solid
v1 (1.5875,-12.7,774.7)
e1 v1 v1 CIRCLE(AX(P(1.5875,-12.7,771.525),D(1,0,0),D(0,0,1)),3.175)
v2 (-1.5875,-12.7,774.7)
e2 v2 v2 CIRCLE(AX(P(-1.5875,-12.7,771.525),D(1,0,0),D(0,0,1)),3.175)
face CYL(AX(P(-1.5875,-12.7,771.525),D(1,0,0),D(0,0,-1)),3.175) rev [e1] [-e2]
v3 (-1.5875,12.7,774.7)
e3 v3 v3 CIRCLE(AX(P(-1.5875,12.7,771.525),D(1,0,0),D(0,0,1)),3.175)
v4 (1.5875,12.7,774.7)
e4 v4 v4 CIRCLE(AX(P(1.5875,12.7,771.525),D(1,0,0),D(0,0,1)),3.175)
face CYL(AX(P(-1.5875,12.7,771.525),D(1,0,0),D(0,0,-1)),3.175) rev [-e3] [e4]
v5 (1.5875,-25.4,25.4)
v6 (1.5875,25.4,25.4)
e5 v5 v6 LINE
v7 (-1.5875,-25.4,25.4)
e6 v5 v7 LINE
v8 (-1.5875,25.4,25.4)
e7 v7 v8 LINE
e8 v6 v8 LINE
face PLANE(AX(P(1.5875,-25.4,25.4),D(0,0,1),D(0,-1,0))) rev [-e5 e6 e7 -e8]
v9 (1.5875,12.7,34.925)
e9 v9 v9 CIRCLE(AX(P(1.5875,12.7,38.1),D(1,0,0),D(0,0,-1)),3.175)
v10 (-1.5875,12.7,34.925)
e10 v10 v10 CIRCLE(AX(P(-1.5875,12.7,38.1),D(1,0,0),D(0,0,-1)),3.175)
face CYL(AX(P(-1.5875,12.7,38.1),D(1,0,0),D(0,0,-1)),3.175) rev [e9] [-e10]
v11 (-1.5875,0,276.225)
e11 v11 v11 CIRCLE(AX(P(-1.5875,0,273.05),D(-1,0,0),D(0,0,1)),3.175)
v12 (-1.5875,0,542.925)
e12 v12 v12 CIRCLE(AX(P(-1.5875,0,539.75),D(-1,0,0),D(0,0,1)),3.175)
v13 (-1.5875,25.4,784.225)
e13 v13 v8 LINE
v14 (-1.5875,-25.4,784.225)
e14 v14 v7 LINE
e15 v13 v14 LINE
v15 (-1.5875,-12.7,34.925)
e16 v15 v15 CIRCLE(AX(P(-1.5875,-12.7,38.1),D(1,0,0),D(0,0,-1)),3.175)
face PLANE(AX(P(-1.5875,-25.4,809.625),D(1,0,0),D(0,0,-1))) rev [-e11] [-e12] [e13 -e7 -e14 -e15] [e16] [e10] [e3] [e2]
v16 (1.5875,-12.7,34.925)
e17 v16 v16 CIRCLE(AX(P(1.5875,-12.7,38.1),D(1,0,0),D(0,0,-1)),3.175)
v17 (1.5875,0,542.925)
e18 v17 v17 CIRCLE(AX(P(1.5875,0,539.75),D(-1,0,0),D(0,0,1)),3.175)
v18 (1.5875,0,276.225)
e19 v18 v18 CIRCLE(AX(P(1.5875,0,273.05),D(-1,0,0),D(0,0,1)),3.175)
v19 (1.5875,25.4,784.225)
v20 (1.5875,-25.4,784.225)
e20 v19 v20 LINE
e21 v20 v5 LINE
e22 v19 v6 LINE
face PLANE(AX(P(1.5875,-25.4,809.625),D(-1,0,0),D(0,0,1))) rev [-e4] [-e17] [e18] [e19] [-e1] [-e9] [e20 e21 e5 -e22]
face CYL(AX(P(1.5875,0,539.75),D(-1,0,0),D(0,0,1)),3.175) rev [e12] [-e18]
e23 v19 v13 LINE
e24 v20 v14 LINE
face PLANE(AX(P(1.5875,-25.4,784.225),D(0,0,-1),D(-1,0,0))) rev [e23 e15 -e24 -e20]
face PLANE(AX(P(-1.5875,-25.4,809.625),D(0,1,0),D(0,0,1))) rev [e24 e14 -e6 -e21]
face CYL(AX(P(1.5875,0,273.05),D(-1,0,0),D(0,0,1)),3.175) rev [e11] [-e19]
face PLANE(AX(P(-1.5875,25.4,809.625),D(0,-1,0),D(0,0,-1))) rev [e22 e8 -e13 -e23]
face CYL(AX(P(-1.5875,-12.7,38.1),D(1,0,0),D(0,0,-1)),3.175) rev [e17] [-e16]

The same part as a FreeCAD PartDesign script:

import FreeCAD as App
import Part
import Sketcher
from FreeCAD import Vector
Q = App.Units.Quantity

doc = App.newDocument("Part")
body = doc.addObject("PartDesign::Body", "Body")

sketch1 = body.newObject("Sketcher::SketchObject", "Sketch")
sketch1.AttachmentSupport = (doc.getObject("XY_Plane"), [""])
sketch1.MapMode = "FlatFace"
sketch1.addGeometry(Part.LineSegment(Vector(-1.6, 25.4, 0), Vector(-1.6, -25.4, 0)), False)
sketch1.addGeometry(Part.LineSegment(Vector(-1.6, -25.4, 0), Vector(1.6, -25.4, 0)), False)
sketch1.addGeometry(Part.LineSegment(Vector(1.6, -25.4, 0), Vector(1.6, 25.4, 0)), False)
sketch1.addGeometry(Part.LineSegment(Vector(1.6, 25.4, 0), Vector(-1.6, 25.4, 0)), False)
sketch1.addConstraint(Sketcher.Constraint("Coincident", 0, 2, 1, 1))
sketch1.addConstraint(Sketcher.Constraint("Coincident", 1, 2, 2, 1))
sketch1.addConstraint(Sketcher.Constraint("Coincident", 2, 2, 3, 1))
sketch1.addConstraint(Sketcher.Constraint("Coincident", 3, 2, 0, 1))
sketch1.addConstraint(Sketcher.Constraint("Vertical", 0))
sketch1.addConstraint(Sketcher.Constraint("Horizontal", 1))
sketch1.addConstraint(Sketcher.Constraint("Vertical", 2))
sketch1.addConstraint(Sketcher.Constraint("Horizontal", 3))
sketch1.addConstraint(Sketcher.Constraint("Symmetric", 0, 2, 2, 2, -1, 1))
sketch1.addConstraint(Sketcher.Constraint("DistanceY", 0, 2, 0, 1, Q("2 in")))
sketch1.addConstraint(Sketcher.Constraint("DistanceX", 1, 1, 1, 2, Q("0.125 in")))
pad1 = body.newObject("PartDesign::Pad", "Pad")
pad1.Profile = sketch1
pad1.Length = Q("31.875 in")

sketch2 = body.newObject("Sketcher::SketchObject", "Sketch001")
sketch2.AttachmentSupport = (doc.getObject("YZ_Plane"), [""])
sketch2.MapMode = "FlatFace"
sketch2.AttachmentOffset = App.Placement(Vector(0, 0, 0.0625 * 25.4), App.Rotation())
sketch2.addGeometry(Part.Circle(Vector(12.7, 38.1, 0), Vector(0, 0, 1), 3.2), False)
sketch2.addGeometry(Part.Circle(Vector(-12.7, 38.1, 0), Vector(0, 0, 1), 3.2), False)
sketch2.addGeometry(Part.Circle(Vector(12.7, 771.5, 0), Vector(0, 0, 1), 3.2), False)
sketch2.addGeometry(Part.Circle(Vector(-12.7, 771.5, 0), Vector(0, 0, 1), 3.2), False)
sketch2.addConstraint(Sketcher.Constraint("Equal", 0, 1))
sketch2.addConstraint(Sketcher.Constraint("Equal", 1, 2))
sketch2.addConstraint(Sketcher.Constraint("Equal", 2, 3))
sketch2.addConstraint(Sketcher.Constraint("Symmetric", 0, 3, 1, 3, -2))
sketch2.addConstraint(Sketcher.Constraint("Symmetric", 2, 3, 3, 3, -2))
sketch2.addConstraint(Sketcher.Constraint("Vertical", 0, 3, 2, 3))
sketch2.addConstraint(Sketcher.Constraint("Diameter", 0, Q("0.25 in")))
sketch2.addConstraint(Sketcher.Constraint("DistanceX", 1, 3, 0, 3, Q("1 in")))
sketch2.addConstraint(Sketcher.Constraint("DistanceY", -1, 1, 0, 3, Q("1.5 in")))
sketch2.addConstraint(Sketcher.Constraint("DistanceY", -1, 1, 2, 3, Q("30.375 in")))
pocket1 = body.newObject("PartDesign::Pocket", "Pocket")
pocket1.Profile = sketch2
pocket1.Type = "ThroughAll"

sketch3 = body.newObject("Sketcher::SketchObject", "Sketch002")
sketch3.AttachmentSupport = (doc.getObject("YZ_Plane"), [""])
sketch3.MapMode = "FlatFace"
sketch3.AttachmentOffset = App.Placement(Vector(0, 0, -0.0625 * 25.4), App.Rotation())
sketch3.addGeometry(Part.LineSegment(Vector(25, 784, 0), Vector(-25, 784, 0)), False)
sketch3.addGeometry(Part.LineSegment(Vector(-25, 784, 0), Vector(-25, 810, 0)), False)
sketch3.addGeometry(Part.LineSegment(Vector(-25, 810, 0), Vector(25, 810, 0)), False)
sketch3.addGeometry(Part.LineSegment(Vector(25, 810, 0), Vector(25, 784, 0)), False)
sketch3.addGeometry(Part.LineSegment(Vector(25, 0, 0), Vector(-25, 0, 0)), False)
sketch3.addGeometry(Part.LineSegment(Vector(-25, 0, 0), Vector(-25, 25, 0)), False)
sketch3.addGeometry(Part.LineSegment(Vector(-25, 25, 0), Vector(25, 25, 0)), False)
sketch3.addGeometry(Part.LineSegment(Vector(25, 25, 0), Vector(25, 0, 0)), False)
sketch3.addConstraint(Sketcher.Constraint("Coincident", 0, 2, 1, 1))
sketch3.addConstraint(Sketcher.Constraint("Coincident", 1, 2, 2, 1))
sketch3.addConstraint(Sketcher.Constraint("Coincident", 2, 2, 3, 1))
sketch3.addConstraint(Sketcher.Constraint("Coincident", 3, 2, 0, 1))
sketch3.addConstraint(Sketcher.Constraint("Coincident", 4, 2, 5, 1))
sketch3.addConstraint(Sketcher.Constraint("Coincident", 5, 2, 6, 1))
sketch3.addConstraint(Sketcher.Constraint("Coincident", 6, 2, 7, 1))
sketch3.addConstraint(Sketcher.Constraint("Coincident", 7, 2, 4, 1))
sketch3.addConstraint(Sketcher.Constraint("Horizontal", 0))
sketch3.addConstraint(Sketcher.Constraint("Vertical", 1))
sketch3.addConstraint(Sketcher.Constraint("Horizontal", 2))
sketch3.addConstraint(Sketcher.Constraint("Vertical", 3))
sketch3.addConstraint(Sketcher.Constraint("Horizontal", 4))
sketch3.addConstraint(Sketcher.Constraint("Vertical", 5))
sketch3.addConstraint(Sketcher.Constraint("Horizontal", 6))
sketch3.addConstraint(Sketcher.Constraint("Vertical", 7))
sketch3.addConstraint(Sketcher.Constraint("Symmetric", 4, 2, 7, 2, -1, 1))
sketch3.addConstraint(Sketcher.Constraint("Vertical", 1, 2, 4, 2))
sketch3.addConstraint(Sketcher.Constraint("Vertical", 3, 2, 6, 2))
sketch3.addConstraint(Sketcher.Constraint("Equal", 3, 5))
sketch3.addConstraint(Sketcher.Constraint("DistanceX", 0, 2, 0, 1, Q("2 in")))
sketch3.addConstraint(Sketcher.Constraint("DistanceY", 1, 1, 1, 2, Q("1 in")))
sketch3.addConstraint(Sketcher.Constraint("DistanceY", -1, 1, 0, 2, Q("30.875 in")))
pocket2 = body.newObject("PartDesign::Pocket", "Pocket001")
pocket2.Profile = sketch3
pocket2.Type = "ThroughAll"
pocket2.Reversed = True

sketch4 = body.newObject("Sketcher::SketchObject", "Sketch003")
sketch4.AttachmentSupport = (doc.getObject("YZ_Plane"), [""])
sketch4.MapMode = "FlatFace"
sketch4.AttachmentOffset = App.Placement(Vector(0, 0, -0.0625 * 25.4), App.Rotation())
sketch4.addGeometry(Part.Circle(Vector(0, 273.1, 0), Vector(0, 0, 1), 3.2), False)
sketch4.addGeometry(Part.Circle(Vector(0, 539.8, 0), Vector(0, 0, 1), 3.2), False)
sketch4.addConstraint(Sketcher.Constraint("Equal", 0, 1))
sketch4.addConstraint(Sketcher.Constraint("PointOnObject", 0, 3, -2))
sketch4.addConstraint(Sketcher.Constraint("PointOnObject", 1, 3, -2))
sketch4.addConstraint(Sketcher.Constraint("Diameter", 0, Q("0.25 in")))
sketch4.addConstraint(Sketcher.Constraint("DistanceY", 0, 3, 1, 3, Q("10.5 in")))
sketch4.addConstraint(Sketcher.Constraint("DistanceY", -1, 1, 0, 3, Q("10.75 in")))
pocket3 = body.newObject("PartDesign::Pocket", "Pocket002")
pocket3.Profile = sketch4
pocket3.Type = "ThroughAll"
pocket3.Reversed = True

doc.recompute()
